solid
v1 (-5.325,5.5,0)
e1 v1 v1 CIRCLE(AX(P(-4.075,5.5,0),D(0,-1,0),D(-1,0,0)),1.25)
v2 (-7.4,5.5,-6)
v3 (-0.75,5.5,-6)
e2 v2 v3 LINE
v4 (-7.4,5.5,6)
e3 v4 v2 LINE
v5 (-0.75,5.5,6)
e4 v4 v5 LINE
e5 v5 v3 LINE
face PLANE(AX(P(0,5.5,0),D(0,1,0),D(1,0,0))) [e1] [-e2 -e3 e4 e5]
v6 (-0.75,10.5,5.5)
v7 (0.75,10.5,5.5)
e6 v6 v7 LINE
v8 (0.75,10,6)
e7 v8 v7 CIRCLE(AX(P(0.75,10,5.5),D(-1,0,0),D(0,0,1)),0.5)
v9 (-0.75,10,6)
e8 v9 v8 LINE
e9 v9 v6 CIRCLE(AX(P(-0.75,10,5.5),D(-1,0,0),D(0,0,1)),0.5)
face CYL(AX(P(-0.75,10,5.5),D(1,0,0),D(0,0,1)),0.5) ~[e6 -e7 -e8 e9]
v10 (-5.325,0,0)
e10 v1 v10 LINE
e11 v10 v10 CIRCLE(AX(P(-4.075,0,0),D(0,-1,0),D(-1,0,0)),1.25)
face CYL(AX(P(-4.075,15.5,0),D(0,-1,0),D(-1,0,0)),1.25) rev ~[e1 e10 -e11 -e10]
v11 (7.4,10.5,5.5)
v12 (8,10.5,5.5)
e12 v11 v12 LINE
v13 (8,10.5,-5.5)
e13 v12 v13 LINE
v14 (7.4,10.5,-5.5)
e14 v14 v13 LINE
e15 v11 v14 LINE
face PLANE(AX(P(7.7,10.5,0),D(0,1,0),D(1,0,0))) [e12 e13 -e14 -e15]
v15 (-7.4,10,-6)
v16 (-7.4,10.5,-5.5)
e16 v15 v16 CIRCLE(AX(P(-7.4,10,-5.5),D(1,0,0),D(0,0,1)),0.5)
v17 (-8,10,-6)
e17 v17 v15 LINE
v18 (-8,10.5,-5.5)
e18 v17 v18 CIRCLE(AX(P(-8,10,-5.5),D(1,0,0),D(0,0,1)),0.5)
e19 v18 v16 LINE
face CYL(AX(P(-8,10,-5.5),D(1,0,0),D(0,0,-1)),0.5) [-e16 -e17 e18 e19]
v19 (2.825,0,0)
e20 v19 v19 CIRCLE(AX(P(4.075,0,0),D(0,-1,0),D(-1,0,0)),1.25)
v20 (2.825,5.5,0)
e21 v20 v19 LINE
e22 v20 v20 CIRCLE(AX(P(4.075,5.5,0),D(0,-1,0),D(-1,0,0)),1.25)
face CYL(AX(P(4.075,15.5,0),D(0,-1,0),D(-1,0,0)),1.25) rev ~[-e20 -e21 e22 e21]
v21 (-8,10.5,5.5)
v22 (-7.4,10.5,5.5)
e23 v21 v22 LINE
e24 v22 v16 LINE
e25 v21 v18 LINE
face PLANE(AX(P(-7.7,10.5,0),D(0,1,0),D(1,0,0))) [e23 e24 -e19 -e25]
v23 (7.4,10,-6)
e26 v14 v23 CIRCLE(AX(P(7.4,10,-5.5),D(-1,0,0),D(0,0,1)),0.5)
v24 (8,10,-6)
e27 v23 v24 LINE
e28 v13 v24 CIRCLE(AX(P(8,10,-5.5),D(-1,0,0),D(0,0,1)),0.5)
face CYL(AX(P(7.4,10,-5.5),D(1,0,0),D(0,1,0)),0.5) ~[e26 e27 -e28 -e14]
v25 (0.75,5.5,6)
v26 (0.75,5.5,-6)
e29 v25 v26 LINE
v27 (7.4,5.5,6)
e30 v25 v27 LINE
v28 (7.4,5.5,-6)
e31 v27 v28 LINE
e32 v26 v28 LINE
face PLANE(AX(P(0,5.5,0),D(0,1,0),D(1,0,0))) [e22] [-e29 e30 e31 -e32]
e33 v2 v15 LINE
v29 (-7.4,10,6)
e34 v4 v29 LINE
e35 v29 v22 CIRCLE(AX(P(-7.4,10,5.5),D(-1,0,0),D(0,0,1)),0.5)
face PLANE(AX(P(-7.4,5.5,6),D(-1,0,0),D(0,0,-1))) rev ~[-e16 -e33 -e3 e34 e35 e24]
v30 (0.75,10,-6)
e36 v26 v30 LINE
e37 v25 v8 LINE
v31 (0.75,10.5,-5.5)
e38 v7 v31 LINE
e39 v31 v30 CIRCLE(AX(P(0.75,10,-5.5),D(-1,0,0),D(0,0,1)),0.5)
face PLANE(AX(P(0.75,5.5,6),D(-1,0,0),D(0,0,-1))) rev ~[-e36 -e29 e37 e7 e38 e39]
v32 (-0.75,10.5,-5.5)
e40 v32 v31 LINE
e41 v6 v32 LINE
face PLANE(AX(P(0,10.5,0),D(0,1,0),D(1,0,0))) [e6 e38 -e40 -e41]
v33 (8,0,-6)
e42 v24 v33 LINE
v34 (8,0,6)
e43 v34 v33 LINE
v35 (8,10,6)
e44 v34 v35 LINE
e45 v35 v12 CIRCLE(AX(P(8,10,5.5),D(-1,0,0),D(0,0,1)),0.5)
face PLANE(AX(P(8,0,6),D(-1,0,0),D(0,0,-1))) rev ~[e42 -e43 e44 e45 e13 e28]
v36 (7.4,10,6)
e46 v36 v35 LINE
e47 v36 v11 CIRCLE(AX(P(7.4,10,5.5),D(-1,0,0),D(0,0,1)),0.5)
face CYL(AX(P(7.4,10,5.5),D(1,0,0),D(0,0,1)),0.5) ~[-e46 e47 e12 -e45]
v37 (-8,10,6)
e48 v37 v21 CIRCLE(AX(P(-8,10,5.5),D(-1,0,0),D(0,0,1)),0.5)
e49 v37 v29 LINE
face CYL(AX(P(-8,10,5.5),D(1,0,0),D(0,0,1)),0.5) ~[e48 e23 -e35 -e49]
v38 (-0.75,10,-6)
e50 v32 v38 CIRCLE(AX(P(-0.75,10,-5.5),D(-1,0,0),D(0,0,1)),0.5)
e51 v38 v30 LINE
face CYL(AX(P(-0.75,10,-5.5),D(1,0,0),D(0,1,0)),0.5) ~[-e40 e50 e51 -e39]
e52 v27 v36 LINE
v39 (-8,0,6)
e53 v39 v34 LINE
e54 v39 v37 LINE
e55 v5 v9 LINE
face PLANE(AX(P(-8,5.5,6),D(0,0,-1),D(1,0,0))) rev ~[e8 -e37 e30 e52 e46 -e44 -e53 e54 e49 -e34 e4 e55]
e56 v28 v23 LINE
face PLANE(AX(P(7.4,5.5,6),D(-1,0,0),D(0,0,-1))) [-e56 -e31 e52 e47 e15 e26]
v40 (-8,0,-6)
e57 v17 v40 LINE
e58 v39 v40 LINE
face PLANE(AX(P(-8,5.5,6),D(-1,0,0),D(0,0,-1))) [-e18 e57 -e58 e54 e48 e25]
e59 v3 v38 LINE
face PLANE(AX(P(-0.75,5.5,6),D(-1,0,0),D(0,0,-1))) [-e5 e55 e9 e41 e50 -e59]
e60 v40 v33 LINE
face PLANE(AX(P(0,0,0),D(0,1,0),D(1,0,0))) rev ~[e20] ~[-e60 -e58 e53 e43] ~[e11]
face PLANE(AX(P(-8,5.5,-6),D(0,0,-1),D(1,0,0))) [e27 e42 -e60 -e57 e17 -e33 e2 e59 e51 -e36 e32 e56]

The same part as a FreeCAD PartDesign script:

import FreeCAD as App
import Part
import Sketcher

V = App.Vector
Q = App.Units.Quantity


def edges_at(feature, points):
    """Names of the edges that pass closest to the given points."""
    edges = feature.Shape.Edges
    near = lambda p: min(range(len(edges)), key=lambda i: edges[i].distToShape(Part.Vertex(*p))[0])
    return sorted({f"Edge{near(p) + 1}" for p in points})

doc = App.newDocument("Part")
body = doc.addObject("PartDesign::Body", "Body")

# Sketch on XZ plane
sketch1 = doc.addObject("Sketcher::SketchObject", "Sketch")
body.addObject(sketch1)
sketch1.AttachmentSupport = (doc.XZ_Plane, [""])
sketch1.MapMode = "FlatFace"
sketch1.addGeometry(Part.LineSegment(V(-8, -6, 0), V(-8, 6, 0)), False)
sketch1.addGeometry(Part.LineSegment(V(-8, 6, 0), V(8, 6, 0)), False)
sketch1.addGeometry(Part.LineSegment(V(8, 6, 0), V(8, -6, 0)), False)
sketch1.addGeometry(Part.LineSegment(V(8, -6, 0), V(-8, -6, 0)), False)
sketch1.addConstraint(Sketcher.Constraint("Coincident", 0, 2, 1, 1))
sketch1.addConstraint(Sketcher.Constraint("Coincident", 1, 2, 2, 1))
sketch1.addConstraint(Sketcher.Constraint("Coincident", 2, 2, 3, 1))
sketch1.addConstraint(Sketcher.Constraint("Coincident", 3, 2, 0, 1))
sketch1.addConstraint(Sketcher.Constraint("Vertical", 0))
sketch1.addConstraint(Sketcher.Constraint("Horizontal", 1))
sketch1.addConstraint(Sketcher.Constraint("Vertical", 2))
sketch1.addConstraint(Sketcher.Constraint("Horizontal", 3))
sketch1.addConstraint(Sketcher.Constraint("Symmetric", 0, 2, 2, 2, -1, 1))
sketch1.addConstraint(Sketcher.Constraint("DistanceX", 1, 1, 1, 2, Q("16 mm")))
sketch1.addConstraint(Sketcher.Constraint("DistanceY", 0, 1, 0, 2, Q("12 mm")))
pad1 = doc.addObject("PartDesign::Pad", "Pad")
body.addObject(pad1)
pad1.Profile = sketch1
pad1.Length = 5.5
pad1.Reversed = True

# Sketch on XZ plane
sketch2 = doc.addObject("Sketcher::SketchObject", "Sketch001")
body.addObject(sketch2)
sketch2.AttachmentSupport = (doc.XZ_Plane, [""])
sketch2.MapMode = "FlatFace"
sketch2.AttachmentOffset = App.Placement(V(0, 0, -5.5), App.Rotation())
sketch2.addGeometry(Part.LineSegment(V(-8, -6, 0), V(-8, 6, 0)), False)
sketch2.addGeometry(Part.LineSegment(V(-8, 6, 0), V(-7.4, 6, 0)), False)
sketch2.addGeometry(Part.LineSegment(V(-7.4, 6, 0), V(-7.4, -6, 0)), False)
sketch2.addGeometry(Part.LineSegment(V(-7.4, -6, 0), V(-8, -6, 0)), False)
sketch2.addGeometry(Part.LineSegment(V(7.4, -6, 0), V(7.4, 6, 0)), False)
sketch2.addGeometry(Part.LineSegment(V(7.4, 6, 0), V(8, 6, 0)), False)
sketch2.addGeometry(Part.LineSegment(V(8, 6, 0), V(8, -6, 0)), False)
sketch2.addGeometry(Part.LineSegment(V(8, -6, 0), V(7.4, -6, 0)), False)
sketch2.addGeometry(Part.LineSegment(V(-0.8, -6, 0), V(-0.8, 6, 0)), False)
sketch2.addGeometry(Part.LineSegment(V(-0.8, 6, 0), V(0.8, 6, 0)), False)
sketch2.addGeometry(Part.LineSegment(V(0.8, 6, 0), V(0.8, -6, 0)), False)
sketch2.addGeometry(Part.LineSegment(V(0.8, -6, 0), V(-0.8, -6, 0)), False)
sketch2.addConstraint(Sketcher.Constraint("Coincident", 0, 2, 1, 1))
sketch2.addConstraint(Sketcher.Constraint("Coincident", 1, 2, 2, 1))
sketch2.addConstraint(Sketcher.Constraint("Coincident", 2, 2, 3, 1))
sketch2.addConstraint(Sketcher.Constraint("Coincident", 3, 2, 0, 1))
sketch2.addConstraint(Sketcher.Constraint("Coincident", 4, 2, 5, 1))
sketch2.addConstraint(Sketcher.Constraint("Coincident", 5, 2, 6, 1))
sketch2.addConstraint(Sketcher.Constraint("Coincident", 6, 2, 7, 1))
sketch2.addConstraint(Sketcher.Constraint("Coincident", 7, 2, 4, 1))
sketch2.addConstraint(Sketcher.Constraint("Coincident", 8, 2, 9, 1))
sketch2.addConstraint(Sketcher.Constraint("Coincident", 9, 2, 10, 1))
sketch2.addConstraint(Sketcher.Constraint("Coincident", 10, 2, 11, 1))
sketch2.addConstraint(Sketcher.Constraint("Coincident", 11, 2, 8, 1))
sketch2.addConstraint(Sketcher.Constraint("Vertical", 0))
sketch2.addConstraint(Sketcher.Constraint("Horizontal", 1))
sketch2.addConstraint(Sketcher.Constraint("Vertical", 2))
sketch2.addConstraint(Sketcher.Constraint("Horizontal", 3))
sketch2.addConstraint(Sketcher.Constraint("Vertical", 4))
sketch2.addConstraint(Sketcher.Constraint("Horizontal", 5))
sketch2.addConstraint(Sketcher.Constraint("Vertical", 6))
sketch2.addConstraint(Sketcher.Constraint("Horizontal", 7))
sketch2.addConstraint(Sketcher.Constraint("Vertical", 8))
sketch2.addConstraint(Sketcher.Constraint("Horizontal", 9))
sketch2.addConstraint(Sketcher.Constraint("Vertical", 10))
sketch2.addConstraint(Sketcher.Constraint("Horizontal", 11))
sketch2.addConstraint(Sketcher.Constraint("Symmetric", 2, 2, 4, 2, -1, 1))
sketch2.addConstraint(Sketcher.Constraint("Symmetric", 0, 2, 6, 2, -1, 1))
sketch2.addConstraint(Sketcher.Constraint("Symmetric", 8, 2, 10, 2, -1, 1))
sketch2.addConstraint(Sketcher.Constraint("Horizontal", 1, 2, 4, 2))
sketch2.addConstraint(Sketcher.Constraint("Horizontal", 5, 2, 8, 2))
sketch2.addConstraint(Sketcher.Constraint("DistanceY", 0, 1, 0, 2, Q("12 mm")))
sketch2.addConstraint(Sketcher.Constraint("DistanceX", 1, 1, 1, 2, Q("0.6 mm")))
sketch2.addConstraint(Sketcher.Constraint("DistanceX", 9, 1, 9, 2, Q("1.5 mm")))
sketch2.addConstraint(Sketcher.Constraint("DistanceX", 0, 2, -1, 1, Q("8 mm")))
pad2 = doc.addObject("PartDesign::Pad", "Pad001")
body.addObject(pad2)
pad2.Profile = sketch2
pad2.Length = 5
pad2.Reversed = True
doc.recompute()

fillet = doc.addObject("PartDesign::Fillet", "Fillet")
body.addObject(fillet)
fillet.Base = (pad2, edges_at(pad2, [
    (-7.7, 10.5, 6),
    (-7.7, 10.5, -6),
    (7.7, 10.5, -6),
    (7.7, 10.5, 6),
    (0, 10.5, 6),
    (0, 10.5, -6),
]))
fillet.Radius = 0.5

# Sketch on XZ plane
sketch3 = doc.addObject("Sketcher::SketchObject", "Sketch002")
body.addObject(sketch3)
sketch3.AttachmentSupport = (doc.XZ_Plane, [""])
sketch3.MapMode = "FlatFace"
sketch3.AttachmentOffset = App.Placement(V(0, 0, -5.5), App.Rotation())
sketch3.addGeometry(Part.Circle(V(-4.1, 0, 0), V(0, 0, 1), 1.2), False)
sketch3.addGeometry(Part.Circle(V(4.1, 0, 0), V(0, 0, 1), 1.2), False)
sketch3.addConstraint(Sketcher.Constraint("Equal", 0, 1))
sketch3.addConstraint(Sketcher.Constraint("Symmetric", 0, 3, 1, 3, -1, 1))
sketch3.addConstraint(Sketcher.Constraint("PointOnObject", 0, 3, -1))
sketch3.addConstraint(Sketcher.Constraint("Diameter", 0, Q("2.5 mm")))
sketch3.addConstraint(Sketcher.Constraint("DistanceX", 0, 3, 1, 3, Q("8.15 mm")))
doc.recompute()
hole = doc.addObject("PartDesign::Hole", "Hole")
body.addObject(hole)
hole.Profile = sketch3
hole.ThreadType = "None"
hole.Diameter = 2.5
hole.DepthType = "Dimension"
hole.Depth = 10
hole.DrillPoint = "Angled"
hole.DrillPointAngle = 118
hole.Reversed = True

doc.recompute()
